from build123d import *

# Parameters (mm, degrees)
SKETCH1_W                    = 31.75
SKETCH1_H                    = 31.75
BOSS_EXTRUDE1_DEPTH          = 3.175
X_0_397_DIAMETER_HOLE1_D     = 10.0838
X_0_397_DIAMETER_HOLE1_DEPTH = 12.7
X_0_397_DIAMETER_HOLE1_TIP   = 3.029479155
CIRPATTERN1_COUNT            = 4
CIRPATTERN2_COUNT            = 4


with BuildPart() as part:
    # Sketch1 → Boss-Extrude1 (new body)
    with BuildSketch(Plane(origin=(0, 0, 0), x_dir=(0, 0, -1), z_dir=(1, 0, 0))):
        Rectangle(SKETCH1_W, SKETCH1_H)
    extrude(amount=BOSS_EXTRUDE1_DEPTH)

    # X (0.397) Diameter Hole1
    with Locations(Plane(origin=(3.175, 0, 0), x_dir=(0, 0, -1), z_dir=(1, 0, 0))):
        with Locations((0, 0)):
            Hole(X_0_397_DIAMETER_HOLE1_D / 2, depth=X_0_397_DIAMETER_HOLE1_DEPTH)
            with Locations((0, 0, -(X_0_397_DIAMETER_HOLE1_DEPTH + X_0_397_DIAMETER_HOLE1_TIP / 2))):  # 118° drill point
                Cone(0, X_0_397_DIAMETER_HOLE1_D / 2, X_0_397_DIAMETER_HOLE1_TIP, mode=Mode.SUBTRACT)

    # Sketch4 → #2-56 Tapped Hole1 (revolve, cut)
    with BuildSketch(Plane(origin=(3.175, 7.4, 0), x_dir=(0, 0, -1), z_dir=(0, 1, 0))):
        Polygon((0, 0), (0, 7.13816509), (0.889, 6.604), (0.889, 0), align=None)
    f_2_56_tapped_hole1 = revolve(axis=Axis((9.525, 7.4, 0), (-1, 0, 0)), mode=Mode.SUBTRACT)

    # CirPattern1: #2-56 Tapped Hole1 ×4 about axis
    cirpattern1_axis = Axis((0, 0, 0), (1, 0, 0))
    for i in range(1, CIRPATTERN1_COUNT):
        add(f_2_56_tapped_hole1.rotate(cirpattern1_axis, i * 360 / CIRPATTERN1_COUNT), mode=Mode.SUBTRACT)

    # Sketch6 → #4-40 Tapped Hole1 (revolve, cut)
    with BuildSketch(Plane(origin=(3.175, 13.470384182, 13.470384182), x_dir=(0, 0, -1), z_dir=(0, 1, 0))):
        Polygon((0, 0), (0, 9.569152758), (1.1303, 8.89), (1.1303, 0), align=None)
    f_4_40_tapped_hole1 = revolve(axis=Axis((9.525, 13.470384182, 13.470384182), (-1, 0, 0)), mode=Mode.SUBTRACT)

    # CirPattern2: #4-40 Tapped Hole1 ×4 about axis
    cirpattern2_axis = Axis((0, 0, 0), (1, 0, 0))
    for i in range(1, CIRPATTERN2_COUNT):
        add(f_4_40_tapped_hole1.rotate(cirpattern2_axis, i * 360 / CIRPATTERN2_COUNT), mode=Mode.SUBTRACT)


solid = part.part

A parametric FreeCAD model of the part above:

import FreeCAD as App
import Part
import Sketcher
Q = App.Units.Quantity


def add_polygon(sketch, points):
    """Adds a closed chain of lines whose ends are joined by coincident constraints."""
    first, n = sketch.GeometryCount, len(points)
    for a, b in zip(points, points[1:] + points[:1]):
        sketch.addGeometry(Part.LineSegment(App.Vector(*a, 0), App.Vector(*b, 0)), False)
    for i in range(n):
        sketch.addConstraint(Sketcher.Constraint("Coincident", first + i, 2, first + (i + 1) % n, 1))

doc = App.newDocument("Part")
body = doc.addObject("PartDesign::Body", "Body")

# Sketch on YZ plane
sketch1 = doc.addObject("Sketcher::SketchObject", "Sketch")
body.addObject(sketch1)
sketch1.AttachmentSupport = (doc.YZ_Plane, [""])
sketch1.MapMode = "FlatFace"
add_polygon(sketch1, [(15.875, 15.875), (-15.875, 15.875), (-15.875, -15.875), (15.875, -15.875)])  # lines 0-3
sketch1.addConstraint([
    Sketcher.Constraint("Horizontal", 0),
    Sketcher.Constraint("Vertical", 1),
    Sketcher.Constraint("Horizontal", 2),
    Sketcher.Constraint("Vertical", 3),
    Sketcher.Constraint("Symmetric", 0, 2, 2, 2, -1, 1),
    Sketcher.Constraint("Equal", 2, 1),
    Sketcher.Constraint("DistanceX", 0, 2, 0, 1, Q("1.25 in")),
])
pad1 = doc.addObject("PartDesign::Pad", "Pad")
body.addObject(pad1)
pad1.Profile = sketch1
pad1.Length = Q("0.125 in")

# Sketch on YZ plane
sketch2 = doc.addObject("Sketcher::SketchObject", "Sketch001")
body.addObject(sketch2)
sketch2.AttachmentSupport = (doc.YZ_Plane, [""])
sketch2.MapMode = "FlatFace"
sketch2.AttachmentOffset = App.Placement(App.Vector(0, 0, 0.125 * 25.4), App.Rotation())
sketch2.addGeometry(Part.Circle(App.Vector(0, 0, 0), App.Vector(0, 0, 1), 5.0419), False)
sketch2.addConstraint([
    Sketcher.Constraint("Coincident", 0, 3, -1, 1),
    Sketcher.Constraint("Diameter", 0, Q("0.397 in")),
])
doc.recompute()
hole = doc.addObject("PartDesign::Hole", "Hole")
body.addObject(hole)
hole.Profile = sketch2
hole.ThreadType = "None"
hole.Diameter = Q("0.397 in")
hole.DepthType = "Dimension"
hole.Depth = Q("0.5 in")
hole.DrillPoint = "Angled"
hole.DrillPointAngle = 118

# Sketch on XZ plane
sketch3 = doc.addObject("Sketcher::SketchObject", "Sketch002")
body.addObject(sketch3)
sketch3.AttachmentSupport = (doc.XZ_Plane, [""])
sketch3.MapMode = "FlatFace"
sketch3.AttachmentOffset = App.Placement(App.Vector(0, 0, -7.4), App.Rotation())
add_polygon(sketch3, [(-3.963165, 0), (3.175, 0), (3.175, -0.889), (-3.429, -0.889)])  # lines 0-3
sketch3.addConstraint([
    Sketcher.Constraint("Horizontal", 0),
    Sketcher.Constraint("Vertical", 1),
    Sketcher.Constraint("Horizontal", 2),
    Sketcher.Constraint("PointOnObject", 0, 2, -1),
    Sketcher.Constraint("Angle", 3, Q("121 deg")),
    Sketcher.Constraint("DistanceX", 2, 2, 2, 1, Q("0.26 in")),
    Sketcher.Constraint("DistanceY", 1, 2, 1, 1, Q("0.035 in")),
    Sketcher.Constraint("DistanceX", -1, 1, 0, 2, Q("0.125 in")),
])
groove = doc.addObject("PartDesign::Groove", "Groove")
body.addObject(groove)
groove.Profile = sketch3
groove.ReferenceAxis = (sketch3, ["H_Axis"])
groove.Angle = 360
doc.recompute()

polarpattern = doc.addObject("PartDesign::PolarPattern", "PolarPattern")
body.addObject(polarpattern)
polarpattern.Originals = [groove]
polarpattern.Axis = (doc.X_Axis, [""])
polarpattern.Angle = 360
polarpattern.Occurrences = 4
body.Tip = polarpattern

# Sketch on XZ plane
sketch4 = doc.addObject("Sketcher::SketchObject", "Sketch003")
body.addObject(sketch4)
sketch4.AttachmentSupport = (doc.XZ_Plane, [""])
sketch4.MapMode = "FlatFace"
sketch4.AttachmentOffset = App.Placement(App.Vector(0, 0, -13.470384), App.Rotation())
add_polygon(sketch4, [(-6.394153, 13.470384), (3.175, 13.470384), (3.175, 12.340084), (-5.715, 12.340084)])  # lines 0-3
sketch4.addGeometry(Part.LineSegment(App.Vector(3.175, 13.470384, 0), App.Vector(-6.394153, 13.470384, 0)), True)  # axis
sketch4.addConstraint([
    Sketcher.Constraint("Horizontal", 0),
    Sketcher.Constraint("Vertical", 1),
    Sketcher.Constraint("Horizontal", 2),
    Sketcher.Constraint("Horizontal", 4),
    Sketcher.Constraint("Coincident", 4, 1, 0, 2),
    Sketcher.Constraint("Equal", 0, 4),
    Sketcher.Constraint("Angle", 3, Q("121 deg")),
    Sketcher.Constraint("DistanceX", 2, 2, 2, 1, Q("0.35 in")),
    Sketcher.Constraint("DistanceY", 1, 2, 1, 1, Q("0.0445 in")),
    Sketcher.Constraint("DistanceX", -1, 1, 0, 2, Q("0.125 in")),
    Sketcher.Constraint("DistanceY", -1, 1, 0, 2, 13.470384),
])
groove2 = doc.addObject("PartDesign::Groove", "Groove001")
body.addObject(groove2)
groove2.Profile = sketch4
groove2.ReferenceAxis = (sketch4, ["Axis0"])
groove2.Angle = 360
doc.recompute()

polarpattern2 = doc.addObject("PartDesign::PolarPattern", "PolarPattern001")
body.addObject(polarpattern2)
polarpattern2.Originals = [groove2]
polarpattern2.Axis = (doc.X_Axis, [""])
polarpattern2.Angle = 360
polarpattern2.Occurrences = 4
body.Tip = polarpattern2

doc.recompute()
